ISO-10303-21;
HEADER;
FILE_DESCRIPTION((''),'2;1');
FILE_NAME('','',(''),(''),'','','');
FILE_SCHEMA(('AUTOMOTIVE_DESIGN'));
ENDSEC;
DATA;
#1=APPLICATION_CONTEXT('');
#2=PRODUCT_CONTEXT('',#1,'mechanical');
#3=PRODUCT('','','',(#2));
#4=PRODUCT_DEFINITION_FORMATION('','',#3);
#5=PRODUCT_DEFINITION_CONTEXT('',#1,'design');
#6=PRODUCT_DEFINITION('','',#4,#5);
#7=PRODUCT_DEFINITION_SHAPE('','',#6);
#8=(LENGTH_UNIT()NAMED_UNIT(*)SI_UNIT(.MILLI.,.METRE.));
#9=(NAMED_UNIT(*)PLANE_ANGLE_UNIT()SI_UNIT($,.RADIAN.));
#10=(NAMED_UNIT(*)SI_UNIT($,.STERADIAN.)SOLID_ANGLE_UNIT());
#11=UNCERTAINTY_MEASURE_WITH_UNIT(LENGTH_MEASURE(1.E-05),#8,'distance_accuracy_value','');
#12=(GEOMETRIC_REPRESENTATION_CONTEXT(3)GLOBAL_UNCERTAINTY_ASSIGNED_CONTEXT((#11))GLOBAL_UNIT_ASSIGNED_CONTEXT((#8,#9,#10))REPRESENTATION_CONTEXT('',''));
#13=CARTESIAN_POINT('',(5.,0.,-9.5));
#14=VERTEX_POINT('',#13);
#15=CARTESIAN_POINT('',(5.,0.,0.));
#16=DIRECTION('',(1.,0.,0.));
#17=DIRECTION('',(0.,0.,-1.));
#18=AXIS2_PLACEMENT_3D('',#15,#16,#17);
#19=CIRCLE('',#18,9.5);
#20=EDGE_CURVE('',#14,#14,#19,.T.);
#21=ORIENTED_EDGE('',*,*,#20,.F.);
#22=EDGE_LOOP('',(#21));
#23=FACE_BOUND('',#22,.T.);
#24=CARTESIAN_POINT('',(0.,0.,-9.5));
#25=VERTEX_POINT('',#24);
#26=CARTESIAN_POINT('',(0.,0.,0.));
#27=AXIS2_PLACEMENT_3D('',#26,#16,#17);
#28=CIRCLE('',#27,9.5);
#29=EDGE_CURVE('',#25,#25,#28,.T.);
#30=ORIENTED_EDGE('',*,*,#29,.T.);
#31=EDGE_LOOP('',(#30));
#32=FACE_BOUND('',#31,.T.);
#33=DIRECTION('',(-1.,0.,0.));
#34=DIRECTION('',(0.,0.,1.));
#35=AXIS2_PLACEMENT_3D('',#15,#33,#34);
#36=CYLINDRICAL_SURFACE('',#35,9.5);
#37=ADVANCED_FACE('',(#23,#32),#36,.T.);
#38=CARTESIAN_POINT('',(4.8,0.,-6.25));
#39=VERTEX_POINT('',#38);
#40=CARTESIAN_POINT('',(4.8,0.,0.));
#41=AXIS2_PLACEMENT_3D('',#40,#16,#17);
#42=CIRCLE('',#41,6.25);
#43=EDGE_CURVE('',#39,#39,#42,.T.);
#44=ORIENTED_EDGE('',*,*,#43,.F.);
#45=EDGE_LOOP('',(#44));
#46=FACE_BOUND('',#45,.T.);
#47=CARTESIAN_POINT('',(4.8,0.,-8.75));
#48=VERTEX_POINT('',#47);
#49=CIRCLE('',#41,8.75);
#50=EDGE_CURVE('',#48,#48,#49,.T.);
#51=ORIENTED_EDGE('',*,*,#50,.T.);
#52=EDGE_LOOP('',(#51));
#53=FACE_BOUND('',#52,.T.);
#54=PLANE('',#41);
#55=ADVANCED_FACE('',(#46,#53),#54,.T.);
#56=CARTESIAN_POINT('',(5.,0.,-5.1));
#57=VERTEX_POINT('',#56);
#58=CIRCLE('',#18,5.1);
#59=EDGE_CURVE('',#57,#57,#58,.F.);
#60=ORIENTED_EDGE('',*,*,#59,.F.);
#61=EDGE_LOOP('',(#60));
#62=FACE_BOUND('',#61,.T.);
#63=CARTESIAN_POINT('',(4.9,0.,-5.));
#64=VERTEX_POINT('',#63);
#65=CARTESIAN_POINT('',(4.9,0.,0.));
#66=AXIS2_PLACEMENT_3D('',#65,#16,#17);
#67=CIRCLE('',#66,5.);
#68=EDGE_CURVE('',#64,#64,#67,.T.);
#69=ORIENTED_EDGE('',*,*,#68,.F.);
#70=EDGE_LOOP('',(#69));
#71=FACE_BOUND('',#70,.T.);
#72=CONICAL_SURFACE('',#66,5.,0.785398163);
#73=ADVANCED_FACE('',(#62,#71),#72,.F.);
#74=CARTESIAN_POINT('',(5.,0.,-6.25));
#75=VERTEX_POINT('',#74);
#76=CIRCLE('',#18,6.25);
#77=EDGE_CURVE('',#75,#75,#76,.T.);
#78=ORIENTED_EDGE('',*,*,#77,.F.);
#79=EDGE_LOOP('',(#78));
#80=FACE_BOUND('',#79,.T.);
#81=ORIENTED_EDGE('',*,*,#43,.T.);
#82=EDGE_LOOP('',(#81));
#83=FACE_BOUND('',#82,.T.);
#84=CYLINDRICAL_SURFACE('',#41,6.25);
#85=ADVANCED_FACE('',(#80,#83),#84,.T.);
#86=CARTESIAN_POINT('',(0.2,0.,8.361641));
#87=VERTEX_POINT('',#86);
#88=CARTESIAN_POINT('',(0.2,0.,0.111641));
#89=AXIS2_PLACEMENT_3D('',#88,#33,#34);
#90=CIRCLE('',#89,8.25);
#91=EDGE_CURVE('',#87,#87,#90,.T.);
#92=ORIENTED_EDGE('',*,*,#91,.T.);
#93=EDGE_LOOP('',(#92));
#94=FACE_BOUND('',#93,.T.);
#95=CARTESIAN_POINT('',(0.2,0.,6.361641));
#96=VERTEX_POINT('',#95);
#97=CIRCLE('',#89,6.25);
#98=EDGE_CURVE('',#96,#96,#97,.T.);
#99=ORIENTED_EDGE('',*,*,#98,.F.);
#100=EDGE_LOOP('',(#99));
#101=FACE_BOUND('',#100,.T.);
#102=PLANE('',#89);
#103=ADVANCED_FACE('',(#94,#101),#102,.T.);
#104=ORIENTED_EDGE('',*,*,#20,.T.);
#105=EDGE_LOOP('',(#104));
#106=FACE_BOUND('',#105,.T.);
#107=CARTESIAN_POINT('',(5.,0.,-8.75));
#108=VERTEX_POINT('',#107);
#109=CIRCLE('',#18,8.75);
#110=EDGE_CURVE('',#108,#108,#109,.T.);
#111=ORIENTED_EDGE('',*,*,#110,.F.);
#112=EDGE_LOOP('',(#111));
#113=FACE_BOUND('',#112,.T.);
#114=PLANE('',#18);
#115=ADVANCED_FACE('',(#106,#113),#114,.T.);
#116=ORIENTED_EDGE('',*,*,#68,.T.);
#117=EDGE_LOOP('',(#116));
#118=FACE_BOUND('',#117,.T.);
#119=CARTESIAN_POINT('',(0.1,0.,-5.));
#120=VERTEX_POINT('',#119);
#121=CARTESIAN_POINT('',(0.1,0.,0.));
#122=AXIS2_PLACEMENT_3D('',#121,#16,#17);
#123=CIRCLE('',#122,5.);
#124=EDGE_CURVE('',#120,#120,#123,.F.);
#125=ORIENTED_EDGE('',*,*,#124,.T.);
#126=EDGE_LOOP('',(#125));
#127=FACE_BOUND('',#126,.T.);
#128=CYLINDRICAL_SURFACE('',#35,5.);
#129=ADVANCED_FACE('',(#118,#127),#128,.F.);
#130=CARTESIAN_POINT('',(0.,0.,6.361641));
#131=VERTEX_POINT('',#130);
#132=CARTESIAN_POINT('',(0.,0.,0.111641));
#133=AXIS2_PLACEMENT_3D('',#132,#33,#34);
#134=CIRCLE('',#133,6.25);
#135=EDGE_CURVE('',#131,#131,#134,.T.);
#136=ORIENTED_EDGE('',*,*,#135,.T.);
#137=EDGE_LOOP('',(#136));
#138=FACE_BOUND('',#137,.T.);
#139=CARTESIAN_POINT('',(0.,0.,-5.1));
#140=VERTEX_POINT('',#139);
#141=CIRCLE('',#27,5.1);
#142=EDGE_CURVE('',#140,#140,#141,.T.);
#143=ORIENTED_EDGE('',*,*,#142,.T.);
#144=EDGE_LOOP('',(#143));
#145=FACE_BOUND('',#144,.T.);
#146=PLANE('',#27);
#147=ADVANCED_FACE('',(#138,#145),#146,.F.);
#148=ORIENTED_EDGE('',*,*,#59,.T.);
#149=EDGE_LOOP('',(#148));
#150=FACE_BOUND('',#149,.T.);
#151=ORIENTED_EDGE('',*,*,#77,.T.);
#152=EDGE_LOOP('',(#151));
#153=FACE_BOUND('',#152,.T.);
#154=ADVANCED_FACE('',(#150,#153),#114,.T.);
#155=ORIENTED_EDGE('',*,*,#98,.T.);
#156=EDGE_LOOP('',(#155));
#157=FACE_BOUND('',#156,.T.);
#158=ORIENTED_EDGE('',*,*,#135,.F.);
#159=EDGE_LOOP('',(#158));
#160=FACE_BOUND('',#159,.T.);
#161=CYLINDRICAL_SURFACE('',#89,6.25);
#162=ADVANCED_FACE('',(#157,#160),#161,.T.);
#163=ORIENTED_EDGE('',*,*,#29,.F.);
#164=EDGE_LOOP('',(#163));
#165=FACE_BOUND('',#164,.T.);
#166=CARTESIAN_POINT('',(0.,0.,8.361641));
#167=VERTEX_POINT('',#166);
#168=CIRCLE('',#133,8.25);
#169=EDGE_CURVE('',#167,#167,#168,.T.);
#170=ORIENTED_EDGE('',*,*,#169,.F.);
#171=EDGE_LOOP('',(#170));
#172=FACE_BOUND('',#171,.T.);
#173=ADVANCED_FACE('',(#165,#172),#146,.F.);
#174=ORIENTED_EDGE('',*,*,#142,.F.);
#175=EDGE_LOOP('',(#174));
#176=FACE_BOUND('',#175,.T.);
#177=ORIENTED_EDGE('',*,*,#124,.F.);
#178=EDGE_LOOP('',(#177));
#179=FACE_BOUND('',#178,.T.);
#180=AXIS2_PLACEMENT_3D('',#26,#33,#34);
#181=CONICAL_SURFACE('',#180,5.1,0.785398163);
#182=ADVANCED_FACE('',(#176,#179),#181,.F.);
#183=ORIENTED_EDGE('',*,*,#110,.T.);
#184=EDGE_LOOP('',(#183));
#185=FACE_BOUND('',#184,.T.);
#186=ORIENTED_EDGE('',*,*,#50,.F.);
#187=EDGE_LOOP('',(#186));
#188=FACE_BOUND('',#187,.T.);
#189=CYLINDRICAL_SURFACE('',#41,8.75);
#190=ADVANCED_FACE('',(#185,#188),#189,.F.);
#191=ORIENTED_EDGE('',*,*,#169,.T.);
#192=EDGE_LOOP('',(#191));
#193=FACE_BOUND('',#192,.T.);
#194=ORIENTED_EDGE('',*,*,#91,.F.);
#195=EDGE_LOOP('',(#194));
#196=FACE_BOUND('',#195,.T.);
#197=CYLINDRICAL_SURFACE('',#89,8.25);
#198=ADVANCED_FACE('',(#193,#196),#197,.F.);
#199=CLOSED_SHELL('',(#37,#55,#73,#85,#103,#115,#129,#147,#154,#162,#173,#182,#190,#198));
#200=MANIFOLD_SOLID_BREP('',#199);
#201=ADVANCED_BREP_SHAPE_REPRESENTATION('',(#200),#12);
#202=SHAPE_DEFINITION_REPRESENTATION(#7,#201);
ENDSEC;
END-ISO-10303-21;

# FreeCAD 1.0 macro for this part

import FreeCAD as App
import Part
import Sketcher

V = App.Vector


def edges_at(feature, points):
    """Names of the edges that pass closest to the given points."""
    edges = feature.Shape.Edges
    near = lambda p: min(range(len(edges)), key=lambda i: edges[i].distToShape(Part.Vertex(*p))[0])
    return sorted({f"Edge{near(p) + 1}" for p in points})

doc = App.newDocument("Part")
body = doc.addObject("PartDesign::Body", "Body")

sketch1 = body.newObject("Sketcher::SketchObject", "Sketch")
sketch1.AttachmentSupport = (doc.getObject("YZ_Plane"), [""])
sketch1.MapMode = "FlatFace"
sketch1.addGeometry([
    Part.Circle(V(0, 0, 0), V(0, 0, 1), 9.5),
    Part.Circle(V(0, 0, 0), V(0, 0, 1), 5),
], False)
sketch1.addConstraint([
    Sketcher.Constraint("Coincident", 0, 3, -1, 1),
    Sketcher.Constraint("Coincident", 1, 3, -1, 1),
    Sketcher.Constraint("Diameter", 0, 19.0),
    Sketcher.Constraint("Diameter", 1, 10.0),
])
pad1 = body.newObject("PartDesign::Pad", "Pad")
pad1.Profile = sketch1
pad1.Length = 5

sketch2 = body.newObject("Sketcher::SketchObject", "Sketch001")
sketch2.AttachmentSupport = (doc.getObject("YZ_Plane"), [""])
sketch2.MapMode = "FlatFace"
sketch2.addGeometry([
    Part.Circle(V(0, 0.111641, 0), V(0, 0, 1), 8.25),
    Part.Circle(V(0, 0.111641, 0), V(0, 0, 1), 6.25),
], False)
sketch2.addConstraint([
    Sketcher.Constraint("Coincident", 1, 3, 0, 3),
    Sketcher.Constraint("PointOnObject", 0, 3, -2),
    Sketcher.Constraint("Diameter", 0, 16.5),
    Sketcher.Constraint("Diameter", 1, 12.5),
    Sketcher.Constraint("DistanceY", -1, 1, 0, 3, 0.111641),
])
pocket1 = body.newObject("PartDesign::Pocket", "Pocket")
pocket1.Profile = sketch2
pocket1.Length = 0.2
pocket1.Reversed = True

sketch3 = body.newObject("Sketcher::SketchObject", "Sketch002")
sketch3.AttachmentSupport = (doc.getObject("YZ_Plane"), [""])
sketch3.MapMode = "FlatFace"
sketch3.AttachmentOffset = App.Placement(V(0, 0, 5), App.Rotation())
sketch3.addGeometry([
    Part.Circle(V(0, 0, 0), V(0, 0, 1), 8.75),
    Part.Circle(V(0, 0, 0), V(0, 0, 1), 6.25),
], False)
sketch3.addConstraint([
    Sketcher.Constraint("Coincident", 0, 3, -1, 1),
    Sketcher.Constraint("Coincident", 1, 3, -1, 1),
    Sketcher.Constraint("Diameter", 0, 17.5),
    Sketcher.Constraint("Diameter", 1, 12.5),
])
pocket2 = body.newObject("PartDesign::Pocket", "Pocket001")
pocket2.Profile = sketch3
pocket2.Length = 0.2
doc.recompute()

chamfer = body.newObject("PartDesign::Chamfer", "Chamfer")
chamfer.Base = (pocket2, edges_at(pocket2, [(0, 0, 5), (5, 0, 5)]))
chamfer.Size = 0.1

doc.recompute()
